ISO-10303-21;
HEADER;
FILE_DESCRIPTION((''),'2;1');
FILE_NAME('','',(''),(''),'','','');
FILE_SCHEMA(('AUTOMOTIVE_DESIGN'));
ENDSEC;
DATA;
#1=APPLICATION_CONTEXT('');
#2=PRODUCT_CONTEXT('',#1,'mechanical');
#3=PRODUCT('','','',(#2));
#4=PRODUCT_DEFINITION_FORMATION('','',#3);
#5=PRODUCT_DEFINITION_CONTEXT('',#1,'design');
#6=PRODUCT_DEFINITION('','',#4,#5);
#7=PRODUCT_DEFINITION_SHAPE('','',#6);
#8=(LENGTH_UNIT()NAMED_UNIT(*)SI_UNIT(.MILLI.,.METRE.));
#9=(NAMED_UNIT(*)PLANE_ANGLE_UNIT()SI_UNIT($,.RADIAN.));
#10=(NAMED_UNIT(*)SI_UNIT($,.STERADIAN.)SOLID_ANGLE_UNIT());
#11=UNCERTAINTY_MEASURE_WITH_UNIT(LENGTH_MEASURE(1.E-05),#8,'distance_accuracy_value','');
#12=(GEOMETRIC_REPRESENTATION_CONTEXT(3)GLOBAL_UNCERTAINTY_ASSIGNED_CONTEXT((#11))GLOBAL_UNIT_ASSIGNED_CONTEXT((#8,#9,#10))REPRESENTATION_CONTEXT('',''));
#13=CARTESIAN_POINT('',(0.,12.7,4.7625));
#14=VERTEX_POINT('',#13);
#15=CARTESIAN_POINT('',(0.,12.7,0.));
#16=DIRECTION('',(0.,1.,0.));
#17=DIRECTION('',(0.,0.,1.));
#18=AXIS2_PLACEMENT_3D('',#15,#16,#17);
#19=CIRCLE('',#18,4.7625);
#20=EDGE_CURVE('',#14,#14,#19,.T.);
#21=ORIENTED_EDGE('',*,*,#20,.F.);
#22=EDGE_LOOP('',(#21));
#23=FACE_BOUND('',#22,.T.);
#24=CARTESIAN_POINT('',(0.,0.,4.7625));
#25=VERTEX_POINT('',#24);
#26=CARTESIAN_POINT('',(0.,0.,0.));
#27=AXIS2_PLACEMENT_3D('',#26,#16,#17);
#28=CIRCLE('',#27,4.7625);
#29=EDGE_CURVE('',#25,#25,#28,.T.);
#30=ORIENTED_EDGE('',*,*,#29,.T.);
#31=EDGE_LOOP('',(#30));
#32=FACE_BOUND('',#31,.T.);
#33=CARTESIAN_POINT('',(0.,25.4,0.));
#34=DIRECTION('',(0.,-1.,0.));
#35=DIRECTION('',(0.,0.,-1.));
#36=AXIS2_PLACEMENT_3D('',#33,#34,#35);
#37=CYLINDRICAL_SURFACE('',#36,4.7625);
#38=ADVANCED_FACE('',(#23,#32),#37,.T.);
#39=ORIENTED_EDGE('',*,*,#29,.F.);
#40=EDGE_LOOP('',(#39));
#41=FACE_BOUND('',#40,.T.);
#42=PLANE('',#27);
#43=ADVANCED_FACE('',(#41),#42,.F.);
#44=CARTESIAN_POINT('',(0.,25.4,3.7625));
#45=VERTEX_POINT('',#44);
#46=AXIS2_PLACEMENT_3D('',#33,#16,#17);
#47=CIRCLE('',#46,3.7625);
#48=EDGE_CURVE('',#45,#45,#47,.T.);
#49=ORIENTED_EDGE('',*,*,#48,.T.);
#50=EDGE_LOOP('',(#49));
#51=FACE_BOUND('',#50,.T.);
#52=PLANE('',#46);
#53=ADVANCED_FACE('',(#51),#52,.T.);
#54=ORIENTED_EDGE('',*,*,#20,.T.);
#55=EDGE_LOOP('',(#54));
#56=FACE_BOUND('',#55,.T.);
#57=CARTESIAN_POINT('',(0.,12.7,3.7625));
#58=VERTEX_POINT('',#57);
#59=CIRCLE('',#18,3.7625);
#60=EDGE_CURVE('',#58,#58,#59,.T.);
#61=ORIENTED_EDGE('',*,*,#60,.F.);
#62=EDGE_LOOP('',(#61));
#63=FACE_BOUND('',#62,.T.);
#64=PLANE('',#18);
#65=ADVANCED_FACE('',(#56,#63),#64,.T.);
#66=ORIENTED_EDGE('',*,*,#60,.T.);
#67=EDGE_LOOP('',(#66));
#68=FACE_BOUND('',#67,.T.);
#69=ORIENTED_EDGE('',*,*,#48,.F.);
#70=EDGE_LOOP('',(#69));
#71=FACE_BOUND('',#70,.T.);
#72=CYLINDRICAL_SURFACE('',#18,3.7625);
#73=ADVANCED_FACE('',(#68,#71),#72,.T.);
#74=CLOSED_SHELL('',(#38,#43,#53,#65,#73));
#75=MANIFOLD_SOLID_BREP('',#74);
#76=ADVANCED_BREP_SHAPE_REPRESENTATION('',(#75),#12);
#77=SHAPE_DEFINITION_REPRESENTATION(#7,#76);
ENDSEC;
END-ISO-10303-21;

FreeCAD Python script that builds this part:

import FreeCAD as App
import Part
import Sketcher

V = App.Vector
Q = App.Units.Quantity

doc = App.newDocument("Part")
params = doc.addObject("Spreadsheet::Sheet", "Params")
for row, (alias, value) in enumerate([
    ("sketch1_diameter", "0.375 in"),
    ("pad1_length", "1 in"),
    ("pocket1_length", "0.5 in"),
], start=1):
    params.set(f"A{row}", alias)
    params.set(f"B{row}", "=" + value)
    params.setAlias(f"B{row}", alias)

body = doc.addObject("PartDesign::Body", "Body")

sketch1 = doc.addObject("Sketcher::SketchObject", "Sketch")
body.addObject(sketch1)
sketch1.AttachmentSupport = (doc.XZ_Plane, [""])
sketch1.MapMode = "FlatFace"
sketch1.addGeometry(Part.Circle(V(0, 0, 0), V(0, 0, 1), 4.7625), False)
sketch1.addConstraint([
    Sketcher.Constraint("Coincident", 0, 3, -1, 1),
    Sketcher.Constraint("Diameter", 0, Q("0.375 in")),
])
sketch1.setExpression("Constraints[1]", "Params.sketch1_diameter")
pad1 = doc.addObject("PartDesign::Pad", "Pad")
body.addObject(pad1)
pad1.Profile = sketch1
pad1.setExpression("Length", "Params.pad1_length")
pad1.Reversed = True

sketch2 = doc.addObject("Sketcher::SketchObject", "Sketch001")
body.addObject(sketch2)
sketch2.AttachmentSupport = (doc.XZ_Plane, [""])
sketch2.MapMode = "FlatFace"
sketch2.AttachmentOffset = App.Placement(V(0, 0, -1 * 25.4), App.Rotation())
sketch2.addGeometry([
    Part.Circle(V(0, 0, 0), V(0, 0, 1), 5.72624),
    Part.Circle(V(0, 0, 0), V(0, 0, 1), 3.7625),
], False)
sketch2.addConstraint([
    Sketcher.Constraint("Coincident", 0, 3, -1, 1),
    Sketcher.Constraint("Coincident", 1, 3, -1, 1),
    Sketcher.Constraint("Diameter", 1, Q("7.525 mm")),
    Sketcher.Constraint("Diameter", 0, Q("11.45248 mm")),
])
pocket1 = doc.addObject("PartDesign::Pocket", "Pocket")
body.addObject(pocket1)
pocket1.Profile = sketch2
pocket1.setExpression("Length", "Params.pocket1_length")
pocket1.Reversed = True

doc.recompute()
